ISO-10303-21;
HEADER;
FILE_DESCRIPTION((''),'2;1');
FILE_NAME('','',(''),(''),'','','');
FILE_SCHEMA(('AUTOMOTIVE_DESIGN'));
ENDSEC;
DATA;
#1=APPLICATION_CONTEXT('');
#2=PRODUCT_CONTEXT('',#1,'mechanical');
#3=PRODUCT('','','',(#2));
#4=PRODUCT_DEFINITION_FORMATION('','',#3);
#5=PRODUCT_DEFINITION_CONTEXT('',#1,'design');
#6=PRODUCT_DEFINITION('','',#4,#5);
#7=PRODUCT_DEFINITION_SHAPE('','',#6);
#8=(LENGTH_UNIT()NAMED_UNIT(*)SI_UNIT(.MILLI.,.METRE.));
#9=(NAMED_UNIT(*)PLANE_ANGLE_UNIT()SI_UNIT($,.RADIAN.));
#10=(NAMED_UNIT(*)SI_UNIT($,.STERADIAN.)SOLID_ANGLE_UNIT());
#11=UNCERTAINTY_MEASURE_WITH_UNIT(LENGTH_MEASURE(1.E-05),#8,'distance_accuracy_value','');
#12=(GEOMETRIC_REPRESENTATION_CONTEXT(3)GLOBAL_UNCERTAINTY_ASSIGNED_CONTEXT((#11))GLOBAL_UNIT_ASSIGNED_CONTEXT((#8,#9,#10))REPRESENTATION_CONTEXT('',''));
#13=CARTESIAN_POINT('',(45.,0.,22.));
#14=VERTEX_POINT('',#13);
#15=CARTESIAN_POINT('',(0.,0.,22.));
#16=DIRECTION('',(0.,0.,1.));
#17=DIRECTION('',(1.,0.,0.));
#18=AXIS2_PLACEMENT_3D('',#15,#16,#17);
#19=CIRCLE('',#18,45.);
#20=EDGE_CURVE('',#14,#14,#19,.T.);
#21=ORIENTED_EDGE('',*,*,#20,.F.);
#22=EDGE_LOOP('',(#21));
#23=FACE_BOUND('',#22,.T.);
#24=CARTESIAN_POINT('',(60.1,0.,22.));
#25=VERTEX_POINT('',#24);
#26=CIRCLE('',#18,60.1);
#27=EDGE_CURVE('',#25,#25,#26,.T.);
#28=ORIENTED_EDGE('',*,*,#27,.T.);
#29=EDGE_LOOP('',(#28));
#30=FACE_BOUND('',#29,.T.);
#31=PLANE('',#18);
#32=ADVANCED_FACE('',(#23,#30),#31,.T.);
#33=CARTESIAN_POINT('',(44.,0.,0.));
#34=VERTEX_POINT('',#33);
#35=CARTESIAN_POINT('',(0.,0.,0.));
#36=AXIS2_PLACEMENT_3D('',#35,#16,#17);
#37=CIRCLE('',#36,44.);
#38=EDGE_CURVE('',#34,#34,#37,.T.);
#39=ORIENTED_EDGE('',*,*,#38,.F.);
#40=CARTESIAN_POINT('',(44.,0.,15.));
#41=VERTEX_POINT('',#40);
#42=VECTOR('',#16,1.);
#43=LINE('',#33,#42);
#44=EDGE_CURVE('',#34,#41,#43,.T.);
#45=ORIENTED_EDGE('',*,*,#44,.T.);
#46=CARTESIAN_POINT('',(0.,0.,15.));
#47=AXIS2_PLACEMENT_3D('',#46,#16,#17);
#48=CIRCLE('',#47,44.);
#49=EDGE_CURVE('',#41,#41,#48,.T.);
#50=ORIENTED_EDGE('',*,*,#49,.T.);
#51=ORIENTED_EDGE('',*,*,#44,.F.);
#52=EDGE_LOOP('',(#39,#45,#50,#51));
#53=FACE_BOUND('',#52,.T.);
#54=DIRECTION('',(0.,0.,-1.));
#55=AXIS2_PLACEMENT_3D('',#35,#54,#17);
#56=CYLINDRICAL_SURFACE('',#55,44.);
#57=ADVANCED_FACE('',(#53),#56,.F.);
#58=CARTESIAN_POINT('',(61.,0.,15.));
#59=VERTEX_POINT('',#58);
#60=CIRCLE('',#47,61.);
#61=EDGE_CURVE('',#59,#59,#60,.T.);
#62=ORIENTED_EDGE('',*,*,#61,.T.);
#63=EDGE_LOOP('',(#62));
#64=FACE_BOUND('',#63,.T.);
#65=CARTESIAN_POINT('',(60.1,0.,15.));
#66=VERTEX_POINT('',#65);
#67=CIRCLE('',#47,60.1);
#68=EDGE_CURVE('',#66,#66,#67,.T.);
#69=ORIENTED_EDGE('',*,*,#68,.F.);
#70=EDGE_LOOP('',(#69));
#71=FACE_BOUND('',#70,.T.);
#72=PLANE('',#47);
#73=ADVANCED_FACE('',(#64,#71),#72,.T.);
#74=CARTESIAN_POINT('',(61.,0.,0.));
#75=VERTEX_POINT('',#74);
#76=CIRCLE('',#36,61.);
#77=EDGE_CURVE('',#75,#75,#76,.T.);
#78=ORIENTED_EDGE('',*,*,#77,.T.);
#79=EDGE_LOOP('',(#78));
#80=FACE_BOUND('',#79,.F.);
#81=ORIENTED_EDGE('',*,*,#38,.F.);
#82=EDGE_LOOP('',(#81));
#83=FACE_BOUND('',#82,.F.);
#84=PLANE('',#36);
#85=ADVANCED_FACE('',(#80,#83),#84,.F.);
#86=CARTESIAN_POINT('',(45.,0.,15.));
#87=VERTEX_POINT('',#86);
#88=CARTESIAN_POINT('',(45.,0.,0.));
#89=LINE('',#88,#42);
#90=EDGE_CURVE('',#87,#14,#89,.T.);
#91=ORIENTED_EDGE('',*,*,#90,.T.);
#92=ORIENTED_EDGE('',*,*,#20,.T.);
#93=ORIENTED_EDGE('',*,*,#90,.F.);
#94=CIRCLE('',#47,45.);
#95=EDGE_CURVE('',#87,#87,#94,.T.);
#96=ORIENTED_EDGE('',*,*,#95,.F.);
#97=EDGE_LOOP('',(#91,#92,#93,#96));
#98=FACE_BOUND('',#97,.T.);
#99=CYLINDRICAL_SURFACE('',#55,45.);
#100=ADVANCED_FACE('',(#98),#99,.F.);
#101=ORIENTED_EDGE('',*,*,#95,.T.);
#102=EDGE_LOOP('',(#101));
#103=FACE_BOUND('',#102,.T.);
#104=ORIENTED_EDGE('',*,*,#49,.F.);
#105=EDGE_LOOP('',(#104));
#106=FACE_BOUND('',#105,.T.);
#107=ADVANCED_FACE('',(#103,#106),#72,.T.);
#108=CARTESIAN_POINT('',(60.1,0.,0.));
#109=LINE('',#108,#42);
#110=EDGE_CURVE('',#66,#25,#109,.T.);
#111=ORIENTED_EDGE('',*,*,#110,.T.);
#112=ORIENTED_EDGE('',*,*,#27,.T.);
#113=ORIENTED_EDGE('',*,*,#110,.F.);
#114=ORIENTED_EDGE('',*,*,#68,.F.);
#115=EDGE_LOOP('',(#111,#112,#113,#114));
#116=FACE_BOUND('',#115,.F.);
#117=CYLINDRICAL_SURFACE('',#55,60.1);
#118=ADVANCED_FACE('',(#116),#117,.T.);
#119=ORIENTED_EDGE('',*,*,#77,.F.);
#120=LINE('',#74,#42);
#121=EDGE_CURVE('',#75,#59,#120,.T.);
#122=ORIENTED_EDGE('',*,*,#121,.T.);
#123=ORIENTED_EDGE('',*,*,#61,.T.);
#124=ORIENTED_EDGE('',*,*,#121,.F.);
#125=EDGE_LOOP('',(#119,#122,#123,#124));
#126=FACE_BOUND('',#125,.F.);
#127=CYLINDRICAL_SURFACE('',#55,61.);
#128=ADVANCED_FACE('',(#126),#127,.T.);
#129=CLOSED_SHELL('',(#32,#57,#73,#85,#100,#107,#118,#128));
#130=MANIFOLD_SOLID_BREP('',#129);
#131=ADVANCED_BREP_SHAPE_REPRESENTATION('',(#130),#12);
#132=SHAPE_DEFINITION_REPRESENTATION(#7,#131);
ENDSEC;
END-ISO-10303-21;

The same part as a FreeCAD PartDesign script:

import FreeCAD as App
import Part
import Sketcher

V = App.Vector

doc = App.newDocument("Part")
params = doc.addObject("Spreadsheet::Sheet", "Params")
for row, (alias, value) in enumerate([
    ("sketch1_diameter", "90 mm"),
    ("sketch1_diameter2", "120.2 mm"),
    ("pad1_length", "22 mm"),
    ("sketch2_diameter", "122 mm"),
    ("sketch2_diameter2", "120.2 mm"),
    ("pad2_length", "15 mm"),
    ("sketch3_diameter", "90 mm"),
    ("sketch3_diameter2", "88 mm"),
    ("pad3_length", "15 mm"),
], start=1):
    params.set(f"A{row}", alias)
    params.set(f"B{row}", "=" + value)
    params.setAlias(f"B{row}", alias)

body = doc.addObject("PartDesign::Body", "Body")

sketch1 = doc.addObject("Sketcher::SketchObject", "Sketch")
body.addObject(sketch1)
sketch1.AttachmentSupport = (doc.XY_Plane, [""])
sketch1.MapMode = "FlatFace"
sketch1.addGeometry(Part.Circle(V(0, 0, 0), V(0, 0, 1), 60.1), False)
sketch1.addGeometry(Part.Circle(V(0, 0, 0), V(0, 0, 1), 45), False)
sketch1.addConstraint(Sketcher.Constraint("Coincident", 0, 3, -1, 1))
sketch1.addConstraint(Sketcher.Constraint("Coincident", 1, 3, -1, 1))
sketch1.addConstraint(Sketcher.Constraint("Diameter", 1, 90.0))
sketch1.addConstraint(Sketcher.Constraint("Diameter", 0, 120.2))
sketch1.setExpression("Constraints[2]", "Params.sketch1_diameter")
sketch1.setExpression("Constraints[3]", "Params.sketch1_diameter2")
pad1 = doc.addObject("PartDesign::Pad", "Pad")
body.addObject(pad1)
pad1.Profile = sketch1
pad1.setExpression("Length", "Params.pad1_length")

sketch2 = doc.addObject("Sketcher::SketchObject", "Sketch001")
body.addObject(sketch2)
sketch2.AttachmentSupport = (doc.XY_Plane, [""])
sketch2.MapMode = "FlatFace"
sketch2.addGeometry(Part.Circle(V(0, 0, 0), V(0, 0, 1), 61), False)
sketch2.addGeometry(Part.Circle(V(0, 0, 0), V(0, 0, 1), 60.1), False)
sketch2.addConstraint(Sketcher.Constraint("Coincident", 0, 3, -1, 1))
sketch2.addConstraint(Sketcher.Constraint("Coincident", 1, 3, -1, 1))
sketch2.addConstraint(Sketcher.Constraint("Diameter", 0, 122.0))
sketch2.addConstraint(Sketcher.Constraint("Diameter", 1, 120.2))
sketch2.setExpression("Constraints[2]", "Params.sketch2_diameter")
sketch2.setExpression("Constraints[3]", "Params.sketch2_diameter2")
pad2 = doc.addObject("PartDesign::Pad", "Pad001")
body.addObject(pad2)
pad2.Profile = sketch2
pad2.setExpression("Length", "Params.pad2_length")

sketch3 = doc.addObject("Sketcher::SketchObject", "Sketch002")
body.addObject(sketch3)
sketch3.AttachmentSupport = (doc.XY_Plane, [""])
sketch3.MapMode = "FlatFace"
sketch3.addGeometry(Part.Circle(V(0, 0, 0), V(0, 0, 1), 45), False)
sketch3.addGeometry(Part.Circle(V(0, 0, 0), V(0, 0, 1), 44), False)
sketch3.addConstraint(Sketcher.Constraint("Coincident", 0, 3, -1, 1))
sketch3.addConstraint(Sketcher.Constraint("Coincident", 1, 3, -1, 1))
sketch3.addConstraint(Sketcher.Constraint("Diameter", 0, 90.0))
sketch3.addConstraint(Sketcher.Constraint("Diameter", 1, 88.0))
sketch3.setExpression("Constraints[2]", "Params.sketch3_diameter")
sketch3.setExpression("Constraints[3]", "Params.sketch3_diameter2")
pad3 = doc.addObject("PartDesign::Pad", "Pad002")
body.addObject(pad3)
pad3.Profile = sketch3
pad3.setExpression("Length", "Params.pad3_length")

doc.recompute()
